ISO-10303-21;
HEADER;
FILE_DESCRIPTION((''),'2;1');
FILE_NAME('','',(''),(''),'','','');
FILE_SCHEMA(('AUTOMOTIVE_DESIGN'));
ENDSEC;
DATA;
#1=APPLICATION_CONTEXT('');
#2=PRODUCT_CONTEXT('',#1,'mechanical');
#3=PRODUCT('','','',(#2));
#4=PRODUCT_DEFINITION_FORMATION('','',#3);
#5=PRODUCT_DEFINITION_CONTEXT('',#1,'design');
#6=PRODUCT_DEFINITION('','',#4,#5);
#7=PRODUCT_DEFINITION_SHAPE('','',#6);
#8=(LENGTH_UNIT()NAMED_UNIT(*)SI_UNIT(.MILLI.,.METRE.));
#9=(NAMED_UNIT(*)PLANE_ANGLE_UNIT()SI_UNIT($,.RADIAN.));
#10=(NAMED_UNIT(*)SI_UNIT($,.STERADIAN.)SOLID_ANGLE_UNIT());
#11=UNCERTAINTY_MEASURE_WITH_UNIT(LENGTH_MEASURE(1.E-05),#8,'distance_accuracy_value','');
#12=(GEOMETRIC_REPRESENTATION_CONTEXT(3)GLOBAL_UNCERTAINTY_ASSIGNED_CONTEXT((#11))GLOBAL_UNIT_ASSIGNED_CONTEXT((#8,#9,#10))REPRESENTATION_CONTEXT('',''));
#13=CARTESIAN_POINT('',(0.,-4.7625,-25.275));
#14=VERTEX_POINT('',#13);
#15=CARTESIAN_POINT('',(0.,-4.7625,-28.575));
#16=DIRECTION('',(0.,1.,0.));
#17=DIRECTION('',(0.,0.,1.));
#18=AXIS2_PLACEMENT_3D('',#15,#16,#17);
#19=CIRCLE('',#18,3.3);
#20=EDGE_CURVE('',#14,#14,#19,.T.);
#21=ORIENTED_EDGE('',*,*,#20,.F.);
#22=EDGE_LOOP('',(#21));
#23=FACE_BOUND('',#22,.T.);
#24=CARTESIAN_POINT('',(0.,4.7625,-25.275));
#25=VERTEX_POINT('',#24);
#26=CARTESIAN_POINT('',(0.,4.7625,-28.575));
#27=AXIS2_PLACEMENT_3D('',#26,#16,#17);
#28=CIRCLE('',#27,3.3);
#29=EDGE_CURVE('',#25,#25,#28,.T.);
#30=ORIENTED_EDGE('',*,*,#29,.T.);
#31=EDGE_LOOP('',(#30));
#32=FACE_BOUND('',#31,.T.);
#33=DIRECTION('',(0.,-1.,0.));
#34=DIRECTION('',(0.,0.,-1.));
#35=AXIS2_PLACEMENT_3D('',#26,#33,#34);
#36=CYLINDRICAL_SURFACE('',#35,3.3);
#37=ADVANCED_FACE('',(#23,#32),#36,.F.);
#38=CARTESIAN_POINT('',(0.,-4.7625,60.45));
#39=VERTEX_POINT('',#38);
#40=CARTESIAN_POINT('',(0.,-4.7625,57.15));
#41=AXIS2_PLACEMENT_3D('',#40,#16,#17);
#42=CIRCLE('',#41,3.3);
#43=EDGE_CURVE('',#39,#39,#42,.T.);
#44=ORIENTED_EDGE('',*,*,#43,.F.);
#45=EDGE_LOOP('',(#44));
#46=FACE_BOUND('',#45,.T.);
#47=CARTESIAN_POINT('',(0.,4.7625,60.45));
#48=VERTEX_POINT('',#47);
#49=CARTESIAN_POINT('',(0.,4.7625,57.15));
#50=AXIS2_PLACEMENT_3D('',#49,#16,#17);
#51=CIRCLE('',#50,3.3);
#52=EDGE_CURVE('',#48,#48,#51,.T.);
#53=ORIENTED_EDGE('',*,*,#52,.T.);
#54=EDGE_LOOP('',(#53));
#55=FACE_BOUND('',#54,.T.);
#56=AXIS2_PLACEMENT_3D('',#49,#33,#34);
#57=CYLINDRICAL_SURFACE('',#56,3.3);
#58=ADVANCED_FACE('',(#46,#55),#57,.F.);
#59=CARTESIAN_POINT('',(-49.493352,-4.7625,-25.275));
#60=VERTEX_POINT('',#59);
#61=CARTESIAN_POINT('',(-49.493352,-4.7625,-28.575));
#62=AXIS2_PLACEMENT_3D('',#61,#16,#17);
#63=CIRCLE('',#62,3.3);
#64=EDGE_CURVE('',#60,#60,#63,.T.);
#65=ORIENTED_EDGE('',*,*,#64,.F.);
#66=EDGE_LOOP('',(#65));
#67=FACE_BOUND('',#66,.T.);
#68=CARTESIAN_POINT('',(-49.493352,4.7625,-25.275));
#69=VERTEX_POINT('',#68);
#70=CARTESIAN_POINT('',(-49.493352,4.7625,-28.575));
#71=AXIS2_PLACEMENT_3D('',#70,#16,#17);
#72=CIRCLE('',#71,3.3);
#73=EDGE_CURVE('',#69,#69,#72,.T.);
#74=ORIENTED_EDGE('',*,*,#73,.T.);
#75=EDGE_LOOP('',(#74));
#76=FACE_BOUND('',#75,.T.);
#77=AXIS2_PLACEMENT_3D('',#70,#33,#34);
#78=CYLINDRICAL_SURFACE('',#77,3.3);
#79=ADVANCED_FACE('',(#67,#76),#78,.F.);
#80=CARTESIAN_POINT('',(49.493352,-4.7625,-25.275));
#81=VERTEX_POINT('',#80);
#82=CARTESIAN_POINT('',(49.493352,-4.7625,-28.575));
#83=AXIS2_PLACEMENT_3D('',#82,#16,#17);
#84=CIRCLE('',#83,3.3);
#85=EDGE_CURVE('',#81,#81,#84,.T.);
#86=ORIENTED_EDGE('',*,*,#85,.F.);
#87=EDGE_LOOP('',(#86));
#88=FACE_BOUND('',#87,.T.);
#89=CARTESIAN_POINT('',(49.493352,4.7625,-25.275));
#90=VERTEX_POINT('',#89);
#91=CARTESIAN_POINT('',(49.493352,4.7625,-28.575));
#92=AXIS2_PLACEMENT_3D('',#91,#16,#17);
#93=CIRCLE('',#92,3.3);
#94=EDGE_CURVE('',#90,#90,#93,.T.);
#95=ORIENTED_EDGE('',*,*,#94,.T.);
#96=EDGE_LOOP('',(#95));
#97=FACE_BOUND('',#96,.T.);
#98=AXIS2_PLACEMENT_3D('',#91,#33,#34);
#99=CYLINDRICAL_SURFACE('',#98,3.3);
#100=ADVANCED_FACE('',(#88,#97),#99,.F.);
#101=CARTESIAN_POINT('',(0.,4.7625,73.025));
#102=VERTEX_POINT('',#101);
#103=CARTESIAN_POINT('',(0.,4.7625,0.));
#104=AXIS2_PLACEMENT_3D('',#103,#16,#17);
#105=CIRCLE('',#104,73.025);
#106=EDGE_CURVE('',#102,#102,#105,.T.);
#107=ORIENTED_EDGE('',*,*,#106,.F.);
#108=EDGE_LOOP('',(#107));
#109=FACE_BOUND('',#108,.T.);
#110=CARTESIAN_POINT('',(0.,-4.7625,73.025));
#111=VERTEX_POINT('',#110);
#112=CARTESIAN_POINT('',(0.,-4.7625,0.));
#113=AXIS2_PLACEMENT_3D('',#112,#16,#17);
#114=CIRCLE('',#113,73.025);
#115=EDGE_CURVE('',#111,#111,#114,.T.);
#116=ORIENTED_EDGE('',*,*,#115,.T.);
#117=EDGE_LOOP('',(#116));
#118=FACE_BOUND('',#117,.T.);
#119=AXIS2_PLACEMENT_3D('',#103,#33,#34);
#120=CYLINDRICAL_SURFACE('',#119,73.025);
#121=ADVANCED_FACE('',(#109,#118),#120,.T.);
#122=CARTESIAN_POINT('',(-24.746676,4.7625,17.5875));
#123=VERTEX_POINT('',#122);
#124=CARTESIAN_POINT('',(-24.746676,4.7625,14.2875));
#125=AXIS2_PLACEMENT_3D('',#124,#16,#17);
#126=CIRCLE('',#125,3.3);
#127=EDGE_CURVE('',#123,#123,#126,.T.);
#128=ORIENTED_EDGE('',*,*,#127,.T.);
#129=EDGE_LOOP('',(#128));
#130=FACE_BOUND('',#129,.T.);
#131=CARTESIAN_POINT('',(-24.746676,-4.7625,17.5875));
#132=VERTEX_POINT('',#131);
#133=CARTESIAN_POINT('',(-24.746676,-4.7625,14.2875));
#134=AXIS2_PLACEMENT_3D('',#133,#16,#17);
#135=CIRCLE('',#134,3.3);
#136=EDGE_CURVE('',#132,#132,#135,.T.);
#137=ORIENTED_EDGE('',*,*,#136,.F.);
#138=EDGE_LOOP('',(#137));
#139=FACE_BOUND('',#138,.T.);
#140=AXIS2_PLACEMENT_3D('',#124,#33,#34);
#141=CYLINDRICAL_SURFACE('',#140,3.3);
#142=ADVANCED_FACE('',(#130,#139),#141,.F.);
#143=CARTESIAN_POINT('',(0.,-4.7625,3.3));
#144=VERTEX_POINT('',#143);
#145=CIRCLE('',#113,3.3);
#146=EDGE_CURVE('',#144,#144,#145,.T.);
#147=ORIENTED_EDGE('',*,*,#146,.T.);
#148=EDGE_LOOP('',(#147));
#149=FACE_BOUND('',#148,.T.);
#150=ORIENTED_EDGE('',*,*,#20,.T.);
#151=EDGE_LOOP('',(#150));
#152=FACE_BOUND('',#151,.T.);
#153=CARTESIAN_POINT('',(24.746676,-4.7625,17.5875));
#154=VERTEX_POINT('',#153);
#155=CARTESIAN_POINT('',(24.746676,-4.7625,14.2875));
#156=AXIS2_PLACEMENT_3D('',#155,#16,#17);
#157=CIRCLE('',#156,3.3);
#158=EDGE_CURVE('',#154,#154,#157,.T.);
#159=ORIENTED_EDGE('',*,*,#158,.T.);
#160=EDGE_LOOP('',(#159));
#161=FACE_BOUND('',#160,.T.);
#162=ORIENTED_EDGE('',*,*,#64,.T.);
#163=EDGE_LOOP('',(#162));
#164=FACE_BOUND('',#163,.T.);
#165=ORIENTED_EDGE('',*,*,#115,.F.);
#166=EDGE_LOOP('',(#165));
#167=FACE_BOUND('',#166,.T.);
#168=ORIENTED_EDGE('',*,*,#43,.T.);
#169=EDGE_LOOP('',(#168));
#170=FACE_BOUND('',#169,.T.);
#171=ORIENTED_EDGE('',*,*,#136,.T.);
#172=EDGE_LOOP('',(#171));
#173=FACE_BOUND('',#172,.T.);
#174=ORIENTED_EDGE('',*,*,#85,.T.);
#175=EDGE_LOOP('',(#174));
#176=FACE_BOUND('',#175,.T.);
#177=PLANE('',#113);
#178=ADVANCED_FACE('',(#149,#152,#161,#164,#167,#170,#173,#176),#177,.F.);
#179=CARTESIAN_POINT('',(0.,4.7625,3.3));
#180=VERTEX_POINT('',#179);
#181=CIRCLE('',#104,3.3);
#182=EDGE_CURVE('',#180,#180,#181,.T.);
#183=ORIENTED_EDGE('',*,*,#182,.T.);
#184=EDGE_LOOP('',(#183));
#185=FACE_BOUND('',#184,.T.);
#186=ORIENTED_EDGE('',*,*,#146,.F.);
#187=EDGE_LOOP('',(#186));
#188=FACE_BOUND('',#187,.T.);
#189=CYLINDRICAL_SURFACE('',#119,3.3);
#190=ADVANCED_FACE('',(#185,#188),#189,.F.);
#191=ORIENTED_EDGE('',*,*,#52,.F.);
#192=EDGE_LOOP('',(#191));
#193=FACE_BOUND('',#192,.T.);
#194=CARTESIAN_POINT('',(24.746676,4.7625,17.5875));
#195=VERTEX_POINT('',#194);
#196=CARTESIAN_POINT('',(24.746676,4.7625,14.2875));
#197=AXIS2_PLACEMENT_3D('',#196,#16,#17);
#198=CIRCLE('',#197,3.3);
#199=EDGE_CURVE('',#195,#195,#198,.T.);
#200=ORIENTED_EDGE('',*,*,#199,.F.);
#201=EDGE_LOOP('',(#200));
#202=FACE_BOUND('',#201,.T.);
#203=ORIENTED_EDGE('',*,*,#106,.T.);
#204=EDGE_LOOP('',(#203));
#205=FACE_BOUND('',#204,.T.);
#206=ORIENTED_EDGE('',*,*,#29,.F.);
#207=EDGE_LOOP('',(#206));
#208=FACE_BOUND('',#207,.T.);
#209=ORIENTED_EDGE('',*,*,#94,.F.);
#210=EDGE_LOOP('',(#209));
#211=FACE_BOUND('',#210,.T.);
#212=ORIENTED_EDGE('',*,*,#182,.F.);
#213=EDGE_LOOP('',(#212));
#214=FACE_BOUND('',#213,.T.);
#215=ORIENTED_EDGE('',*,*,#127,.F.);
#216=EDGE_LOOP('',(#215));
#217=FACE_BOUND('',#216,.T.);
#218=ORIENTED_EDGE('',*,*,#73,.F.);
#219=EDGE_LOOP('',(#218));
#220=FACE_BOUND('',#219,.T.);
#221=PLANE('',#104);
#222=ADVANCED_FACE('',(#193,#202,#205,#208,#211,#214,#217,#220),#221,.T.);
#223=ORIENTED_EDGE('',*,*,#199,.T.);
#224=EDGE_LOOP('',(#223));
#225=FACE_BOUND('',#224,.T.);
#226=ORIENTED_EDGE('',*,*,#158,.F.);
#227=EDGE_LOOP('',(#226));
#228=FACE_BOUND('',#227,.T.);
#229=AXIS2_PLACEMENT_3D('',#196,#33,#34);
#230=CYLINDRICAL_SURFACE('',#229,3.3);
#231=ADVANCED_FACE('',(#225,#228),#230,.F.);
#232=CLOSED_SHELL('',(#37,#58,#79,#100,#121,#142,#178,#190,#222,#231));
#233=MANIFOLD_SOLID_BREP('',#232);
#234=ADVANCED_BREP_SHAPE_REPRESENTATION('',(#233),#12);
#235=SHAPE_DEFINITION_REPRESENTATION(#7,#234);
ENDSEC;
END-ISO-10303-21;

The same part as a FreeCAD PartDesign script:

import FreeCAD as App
import Part
import Sketcher
Q = App.Units.Quantity

doc = App.newDocument("Part")
params = doc.addObject("Spreadsheet::Sheet", "Params")
for row, (alias, value) in enumerate([
    ("sketch1_diameter", "5.75 in"),
    ("pad1_length", "0.375 in"),
], start=1):
    params.set(f"A{row}", alias)
    params.set(f"B{row}", "=" + value)
    params.setAlias(f"B{row}", alias)

body = doc.addObject("PartDesign::Body", "Body")

sketch1 = body.newObject("Sketcher::SketchObject", "Sketch")
sketch1.AttachmentSupport = (doc.getObject("XZ_Plane"), [""])
sketch1.MapMode = "FlatFace"
sketch1.addGeometry([
    Part.Circle(App.Vector(0, 0, 0), App.Vector(0, 0, 1), 73),
    Part.Circle(App.Vector(0, 57.1, 0), App.Vector(0, 0, 1), 3.3),
    Part.Circle(App.Vector(-24.7, 14.3, 0), App.Vector(0, 0, 1), 3.3),
    Part.Circle(App.Vector(-49.5, -28.6, 0), App.Vector(0, 0, 1), 3.3),
    Part.Circle(App.Vector(24.7, 14.3, 0), App.Vector(0, 0, 1), 3.3),
    Part.Circle(App.Vector(0, 0, 0), App.Vector(0, 0, 1), 3.3),
    Part.Circle(App.Vector(0, -28.6, 0), App.Vector(0, 0, 1), 3.3),
    Part.Circle(App.Vector(49.5, -28.6, 0), App.Vector(0, 0, 1), 3.3),
], False)
sketch1.addConstraint([
    Sketcher.Constraint("Coincident", 0, 3, -1, 1),
    Sketcher.Constraint("Coincident", 5, 3, -1, 1),
    Sketcher.Constraint("Equal", 1, 2),
    Sketcher.Constraint("Equal", 2, 3),
    Sketcher.Constraint("Equal", 3, 4),
    Sketcher.Constraint("Equal", 4, 5),
    Sketcher.Constraint("Equal", 5, 6),
    Sketcher.Constraint("Equal", 6, 7),
    Sketcher.Constraint("Symmetric", 2, 3, 4, 3, -2),
    Sketcher.Constraint("Symmetric", 3, 3, 7, 3, -2),
    Sketcher.Constraint("PointOnObject", 1, 3, -2),
    Sketcher.Constraint("PointOnObject", 6, 3, -2),
    Sketcher.Constraint("Horizontal", 3, 3, 6, 3),
    Sketcher.Constraint("Diameter", 0, Q("5.75 in")),
    Sketcher.Constraint("Diameter", 1, 6.6),
    Sketcher.Constraint("DistanceY", -1, 1, 1, 3, Q("2.25 in")),
    Sketcher.Constraint("DistanceY", -1, 1, 2, 3, Q("0.5625 in")),
    Sketcher.Constraint("DistanceY", 3, 3, -1, 1, Q("1.125 in")),
    Sketcher.Constraint("DistanceX", 3, 3, -1, 1, 49.493352),
    Sketcher.Constraint("DistanceX", 2, 3, 4, 3, 49.493352),
])
sketch1.setExpression("Constraints[13]", "Params.sketch1_diameter")
pad1 = body.newObject("PartDesign::Pad", "Pad")
pad1.Profile = sketch1
pad1.setExpression("Length", "Params.pad1_length")
pad1.Midplane = True

doc.recompute()
